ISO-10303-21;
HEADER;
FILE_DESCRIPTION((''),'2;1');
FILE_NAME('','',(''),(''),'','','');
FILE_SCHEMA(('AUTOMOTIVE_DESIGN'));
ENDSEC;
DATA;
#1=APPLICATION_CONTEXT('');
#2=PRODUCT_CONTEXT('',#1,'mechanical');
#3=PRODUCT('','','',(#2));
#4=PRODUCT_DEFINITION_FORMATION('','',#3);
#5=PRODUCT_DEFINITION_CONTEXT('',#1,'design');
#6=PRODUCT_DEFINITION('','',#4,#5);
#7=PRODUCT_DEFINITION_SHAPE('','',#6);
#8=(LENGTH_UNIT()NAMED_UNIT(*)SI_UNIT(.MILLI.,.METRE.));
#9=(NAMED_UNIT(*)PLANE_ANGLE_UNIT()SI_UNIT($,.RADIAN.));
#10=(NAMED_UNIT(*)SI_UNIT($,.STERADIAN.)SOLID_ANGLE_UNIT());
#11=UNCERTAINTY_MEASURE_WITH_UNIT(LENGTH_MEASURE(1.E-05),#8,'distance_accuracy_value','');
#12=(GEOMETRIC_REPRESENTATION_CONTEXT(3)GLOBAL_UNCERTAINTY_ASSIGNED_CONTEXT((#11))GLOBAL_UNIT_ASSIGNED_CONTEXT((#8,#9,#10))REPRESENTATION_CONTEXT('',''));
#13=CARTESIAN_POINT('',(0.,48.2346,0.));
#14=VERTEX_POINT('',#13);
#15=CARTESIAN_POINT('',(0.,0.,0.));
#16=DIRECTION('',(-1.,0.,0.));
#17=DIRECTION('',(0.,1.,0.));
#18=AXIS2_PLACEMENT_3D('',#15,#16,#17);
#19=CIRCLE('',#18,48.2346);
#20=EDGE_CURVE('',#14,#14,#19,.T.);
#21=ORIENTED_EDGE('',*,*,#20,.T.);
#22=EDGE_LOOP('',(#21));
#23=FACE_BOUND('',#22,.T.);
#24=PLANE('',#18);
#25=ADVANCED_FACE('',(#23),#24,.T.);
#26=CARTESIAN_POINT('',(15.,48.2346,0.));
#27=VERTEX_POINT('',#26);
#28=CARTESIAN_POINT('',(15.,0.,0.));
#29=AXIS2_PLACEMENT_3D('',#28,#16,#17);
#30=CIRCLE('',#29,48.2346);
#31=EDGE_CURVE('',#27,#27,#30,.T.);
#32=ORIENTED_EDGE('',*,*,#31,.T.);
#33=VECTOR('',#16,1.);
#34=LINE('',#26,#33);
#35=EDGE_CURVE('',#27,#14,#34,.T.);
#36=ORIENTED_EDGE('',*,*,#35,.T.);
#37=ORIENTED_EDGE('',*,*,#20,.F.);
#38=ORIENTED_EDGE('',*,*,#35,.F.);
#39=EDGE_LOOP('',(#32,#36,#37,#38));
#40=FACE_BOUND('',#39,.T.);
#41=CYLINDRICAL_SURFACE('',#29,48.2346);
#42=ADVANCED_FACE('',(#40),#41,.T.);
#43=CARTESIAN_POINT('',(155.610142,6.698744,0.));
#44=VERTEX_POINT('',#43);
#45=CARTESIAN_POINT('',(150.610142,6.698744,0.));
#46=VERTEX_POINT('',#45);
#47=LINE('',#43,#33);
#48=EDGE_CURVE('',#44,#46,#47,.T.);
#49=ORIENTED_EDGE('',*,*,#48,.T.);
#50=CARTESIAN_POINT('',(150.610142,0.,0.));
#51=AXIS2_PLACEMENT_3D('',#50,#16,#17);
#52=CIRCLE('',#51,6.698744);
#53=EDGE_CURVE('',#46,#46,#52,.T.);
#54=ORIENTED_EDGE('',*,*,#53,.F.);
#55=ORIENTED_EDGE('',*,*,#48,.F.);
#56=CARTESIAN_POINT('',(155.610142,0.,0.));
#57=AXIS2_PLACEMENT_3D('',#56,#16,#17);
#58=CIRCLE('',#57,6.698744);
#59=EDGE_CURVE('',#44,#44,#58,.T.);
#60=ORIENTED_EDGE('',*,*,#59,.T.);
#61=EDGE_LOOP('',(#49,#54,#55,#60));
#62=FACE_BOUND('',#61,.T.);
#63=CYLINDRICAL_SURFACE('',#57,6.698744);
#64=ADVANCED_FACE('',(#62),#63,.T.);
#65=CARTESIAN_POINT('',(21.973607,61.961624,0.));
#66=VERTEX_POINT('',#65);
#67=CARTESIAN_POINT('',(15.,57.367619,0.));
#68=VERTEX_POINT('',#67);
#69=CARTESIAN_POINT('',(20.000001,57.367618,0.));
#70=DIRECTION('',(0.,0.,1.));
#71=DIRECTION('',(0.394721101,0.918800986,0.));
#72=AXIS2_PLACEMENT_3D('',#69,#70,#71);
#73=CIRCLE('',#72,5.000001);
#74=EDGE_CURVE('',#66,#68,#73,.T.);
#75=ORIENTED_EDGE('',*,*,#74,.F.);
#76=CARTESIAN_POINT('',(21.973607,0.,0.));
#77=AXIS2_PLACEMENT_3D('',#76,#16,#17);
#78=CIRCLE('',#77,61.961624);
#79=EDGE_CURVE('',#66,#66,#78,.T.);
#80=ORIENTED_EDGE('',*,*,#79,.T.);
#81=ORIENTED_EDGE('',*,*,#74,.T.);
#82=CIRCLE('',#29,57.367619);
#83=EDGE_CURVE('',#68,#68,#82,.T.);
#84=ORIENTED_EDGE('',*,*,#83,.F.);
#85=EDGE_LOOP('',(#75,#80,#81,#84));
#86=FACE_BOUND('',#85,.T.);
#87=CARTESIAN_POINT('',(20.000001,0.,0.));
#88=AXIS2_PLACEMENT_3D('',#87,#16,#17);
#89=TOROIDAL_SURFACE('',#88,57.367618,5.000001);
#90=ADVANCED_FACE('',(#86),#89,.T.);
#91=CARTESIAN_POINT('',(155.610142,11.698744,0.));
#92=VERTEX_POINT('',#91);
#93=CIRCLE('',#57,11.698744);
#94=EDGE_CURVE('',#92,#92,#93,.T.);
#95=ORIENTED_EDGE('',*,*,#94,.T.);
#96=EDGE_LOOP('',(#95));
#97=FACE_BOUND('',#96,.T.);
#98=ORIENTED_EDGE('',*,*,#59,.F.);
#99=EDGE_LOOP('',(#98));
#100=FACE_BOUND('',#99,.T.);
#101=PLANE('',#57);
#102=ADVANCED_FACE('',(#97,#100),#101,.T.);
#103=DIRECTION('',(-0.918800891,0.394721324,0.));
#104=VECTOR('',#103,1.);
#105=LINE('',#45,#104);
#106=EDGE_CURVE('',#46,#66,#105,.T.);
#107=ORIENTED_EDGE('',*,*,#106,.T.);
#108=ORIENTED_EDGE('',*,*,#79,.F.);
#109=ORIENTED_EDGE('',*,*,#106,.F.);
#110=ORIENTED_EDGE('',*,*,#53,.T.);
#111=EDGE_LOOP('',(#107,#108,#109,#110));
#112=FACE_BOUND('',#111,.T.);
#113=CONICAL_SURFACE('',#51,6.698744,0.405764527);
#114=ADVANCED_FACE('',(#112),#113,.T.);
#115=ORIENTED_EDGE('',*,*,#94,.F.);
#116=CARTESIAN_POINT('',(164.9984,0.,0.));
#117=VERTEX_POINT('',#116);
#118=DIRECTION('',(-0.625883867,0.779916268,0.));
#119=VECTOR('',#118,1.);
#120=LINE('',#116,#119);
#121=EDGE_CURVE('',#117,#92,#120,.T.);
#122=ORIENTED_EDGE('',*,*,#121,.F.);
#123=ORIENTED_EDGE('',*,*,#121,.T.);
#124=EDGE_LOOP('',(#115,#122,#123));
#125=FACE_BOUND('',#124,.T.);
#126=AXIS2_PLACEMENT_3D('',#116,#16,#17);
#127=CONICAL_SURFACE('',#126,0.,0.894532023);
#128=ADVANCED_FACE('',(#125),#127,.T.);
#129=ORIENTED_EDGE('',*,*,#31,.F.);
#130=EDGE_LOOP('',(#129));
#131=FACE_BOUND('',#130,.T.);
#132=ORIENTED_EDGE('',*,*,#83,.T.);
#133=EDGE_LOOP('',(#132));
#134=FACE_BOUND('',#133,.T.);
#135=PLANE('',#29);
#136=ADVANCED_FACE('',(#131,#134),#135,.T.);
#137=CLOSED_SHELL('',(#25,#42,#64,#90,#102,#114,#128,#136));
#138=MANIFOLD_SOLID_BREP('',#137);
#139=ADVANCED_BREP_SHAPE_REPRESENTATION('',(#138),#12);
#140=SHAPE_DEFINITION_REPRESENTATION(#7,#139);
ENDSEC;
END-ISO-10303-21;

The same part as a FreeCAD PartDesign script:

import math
import FreeCAD as App
import Part
import Sketcher
from FreeCAD import Vector
Q = App.Units.Quantity

doc = App.newDocument("Part")
body = doc.addObject("PartDesign::Body", "Body")

sketch1 = body.newObject("Sketcher::SketchObject", "Sketch")
sketch1.AttachmentSupport = (doc.getObject("XY_Plane"), [""])
sketch1.MapMode = "FlatFace"
sketch1.addGeometry([
    Part.LineSegment(Vector(0, 48, 0), Vector(0, 0, 0)),
    Part.LineSegment(Vector(0, 0, 0), Vector(165, 0, 0)),
    Part.LineSegment(Vector(165, 0, 0), Vector(156, 12, 0)),
    Part.LineSegment(Vector(156, 12, 0), Vector(156, 7, 0)),
    Part.LineSegment(Vector(156, 7, 0), Vector(151, 7, 0)),
    Part.LineSegment(Vector(151, 7, 0), Vector(22, 62, 0)),
    Part.ArcOfCircle(Part.Circle(Vector(20, 57, 0), Vector(0, 0, 1), 5), math.radians(67), math.radians(180)),
    Part.LineSegment(Vector(15, 57, 0), Vector(15, 48, 0)),
    Part.LineSegment(Vector(15, 48, 0), Vector(0, 48, 0)),
], False)
sketch1.addConstraint([
    Sketcher.Constraint("Coincident", 0, 2, 1, 1),
    Sketcher.Constraint("Coincident", 1, 2, 2, 1),
    Sketcher.Constraint("Coincident", 2, 2, 3, 1),
    Sketcher.Constraint("Coincident", 3, 2, 4, 1),
    Sketcher.Constraint("Coincident", 4, 2, 5, 1),
    Sketcher.Constraint("Tangent", 5, 2, 6, 1),
    Sketcher.Constraint("Tangent", 6, 2, 7, 1),
    Sketcher.Constraint("Coincident", 7, 2, 8, 1),
    Sketcher.Constraint("Coincident", 8, 2, 0, 1),
    Sketcher.Constraint("Vertical", 0),
    Sketcher.Constraint("Horizontal", 1),
    Sketcher.Constraint("Vertical", 3),
    Sketcher.Constraint("Horizontal", 4),
    Sketcher.Constraint("Vertical", 7),
    Sketcher.Constraint("Horizontal", 8),
    Sketcher.Constraint("Coincident", 0, 2, -1, 1),
    Sketcher.Constraint("Equal", 4, 3),
    Sketcher.Constraint("DistanceX", 1, 1, 1, 2, Q("6.496 in")),
    Sketcher.Constraint("DistanceY", 0, 2, 0, 1, Q("1.899 in")),
    Sketcher.Constraint("Radius", 6, Q("5.000001 mm")),
    Sketcher.Constraint("Distance", 5, Q("5.512 in")),
    Sketcher.Constraint("DistanceX", 4, 2, 4, 1, Q("5 mm")),
    Sketcher.Constraint("DistanceX", 8, 2, 8, 1, Q("15 mm")),
    Sketcher.Constraint("Distance", 2, Q("15 mm")),
    Sketcher.Constraint("DistanceY", 7, 2, 7, 1, Q("9.133019 mm")),
])
revolution = body.newObject("PartDesign::Revolution", "Revolution")
revolution.Profile = sketch1
revolution.ReferenceAxis = (sketch1, ["H_Axis"])
revolution.Angle = 360

doc.recompute()
